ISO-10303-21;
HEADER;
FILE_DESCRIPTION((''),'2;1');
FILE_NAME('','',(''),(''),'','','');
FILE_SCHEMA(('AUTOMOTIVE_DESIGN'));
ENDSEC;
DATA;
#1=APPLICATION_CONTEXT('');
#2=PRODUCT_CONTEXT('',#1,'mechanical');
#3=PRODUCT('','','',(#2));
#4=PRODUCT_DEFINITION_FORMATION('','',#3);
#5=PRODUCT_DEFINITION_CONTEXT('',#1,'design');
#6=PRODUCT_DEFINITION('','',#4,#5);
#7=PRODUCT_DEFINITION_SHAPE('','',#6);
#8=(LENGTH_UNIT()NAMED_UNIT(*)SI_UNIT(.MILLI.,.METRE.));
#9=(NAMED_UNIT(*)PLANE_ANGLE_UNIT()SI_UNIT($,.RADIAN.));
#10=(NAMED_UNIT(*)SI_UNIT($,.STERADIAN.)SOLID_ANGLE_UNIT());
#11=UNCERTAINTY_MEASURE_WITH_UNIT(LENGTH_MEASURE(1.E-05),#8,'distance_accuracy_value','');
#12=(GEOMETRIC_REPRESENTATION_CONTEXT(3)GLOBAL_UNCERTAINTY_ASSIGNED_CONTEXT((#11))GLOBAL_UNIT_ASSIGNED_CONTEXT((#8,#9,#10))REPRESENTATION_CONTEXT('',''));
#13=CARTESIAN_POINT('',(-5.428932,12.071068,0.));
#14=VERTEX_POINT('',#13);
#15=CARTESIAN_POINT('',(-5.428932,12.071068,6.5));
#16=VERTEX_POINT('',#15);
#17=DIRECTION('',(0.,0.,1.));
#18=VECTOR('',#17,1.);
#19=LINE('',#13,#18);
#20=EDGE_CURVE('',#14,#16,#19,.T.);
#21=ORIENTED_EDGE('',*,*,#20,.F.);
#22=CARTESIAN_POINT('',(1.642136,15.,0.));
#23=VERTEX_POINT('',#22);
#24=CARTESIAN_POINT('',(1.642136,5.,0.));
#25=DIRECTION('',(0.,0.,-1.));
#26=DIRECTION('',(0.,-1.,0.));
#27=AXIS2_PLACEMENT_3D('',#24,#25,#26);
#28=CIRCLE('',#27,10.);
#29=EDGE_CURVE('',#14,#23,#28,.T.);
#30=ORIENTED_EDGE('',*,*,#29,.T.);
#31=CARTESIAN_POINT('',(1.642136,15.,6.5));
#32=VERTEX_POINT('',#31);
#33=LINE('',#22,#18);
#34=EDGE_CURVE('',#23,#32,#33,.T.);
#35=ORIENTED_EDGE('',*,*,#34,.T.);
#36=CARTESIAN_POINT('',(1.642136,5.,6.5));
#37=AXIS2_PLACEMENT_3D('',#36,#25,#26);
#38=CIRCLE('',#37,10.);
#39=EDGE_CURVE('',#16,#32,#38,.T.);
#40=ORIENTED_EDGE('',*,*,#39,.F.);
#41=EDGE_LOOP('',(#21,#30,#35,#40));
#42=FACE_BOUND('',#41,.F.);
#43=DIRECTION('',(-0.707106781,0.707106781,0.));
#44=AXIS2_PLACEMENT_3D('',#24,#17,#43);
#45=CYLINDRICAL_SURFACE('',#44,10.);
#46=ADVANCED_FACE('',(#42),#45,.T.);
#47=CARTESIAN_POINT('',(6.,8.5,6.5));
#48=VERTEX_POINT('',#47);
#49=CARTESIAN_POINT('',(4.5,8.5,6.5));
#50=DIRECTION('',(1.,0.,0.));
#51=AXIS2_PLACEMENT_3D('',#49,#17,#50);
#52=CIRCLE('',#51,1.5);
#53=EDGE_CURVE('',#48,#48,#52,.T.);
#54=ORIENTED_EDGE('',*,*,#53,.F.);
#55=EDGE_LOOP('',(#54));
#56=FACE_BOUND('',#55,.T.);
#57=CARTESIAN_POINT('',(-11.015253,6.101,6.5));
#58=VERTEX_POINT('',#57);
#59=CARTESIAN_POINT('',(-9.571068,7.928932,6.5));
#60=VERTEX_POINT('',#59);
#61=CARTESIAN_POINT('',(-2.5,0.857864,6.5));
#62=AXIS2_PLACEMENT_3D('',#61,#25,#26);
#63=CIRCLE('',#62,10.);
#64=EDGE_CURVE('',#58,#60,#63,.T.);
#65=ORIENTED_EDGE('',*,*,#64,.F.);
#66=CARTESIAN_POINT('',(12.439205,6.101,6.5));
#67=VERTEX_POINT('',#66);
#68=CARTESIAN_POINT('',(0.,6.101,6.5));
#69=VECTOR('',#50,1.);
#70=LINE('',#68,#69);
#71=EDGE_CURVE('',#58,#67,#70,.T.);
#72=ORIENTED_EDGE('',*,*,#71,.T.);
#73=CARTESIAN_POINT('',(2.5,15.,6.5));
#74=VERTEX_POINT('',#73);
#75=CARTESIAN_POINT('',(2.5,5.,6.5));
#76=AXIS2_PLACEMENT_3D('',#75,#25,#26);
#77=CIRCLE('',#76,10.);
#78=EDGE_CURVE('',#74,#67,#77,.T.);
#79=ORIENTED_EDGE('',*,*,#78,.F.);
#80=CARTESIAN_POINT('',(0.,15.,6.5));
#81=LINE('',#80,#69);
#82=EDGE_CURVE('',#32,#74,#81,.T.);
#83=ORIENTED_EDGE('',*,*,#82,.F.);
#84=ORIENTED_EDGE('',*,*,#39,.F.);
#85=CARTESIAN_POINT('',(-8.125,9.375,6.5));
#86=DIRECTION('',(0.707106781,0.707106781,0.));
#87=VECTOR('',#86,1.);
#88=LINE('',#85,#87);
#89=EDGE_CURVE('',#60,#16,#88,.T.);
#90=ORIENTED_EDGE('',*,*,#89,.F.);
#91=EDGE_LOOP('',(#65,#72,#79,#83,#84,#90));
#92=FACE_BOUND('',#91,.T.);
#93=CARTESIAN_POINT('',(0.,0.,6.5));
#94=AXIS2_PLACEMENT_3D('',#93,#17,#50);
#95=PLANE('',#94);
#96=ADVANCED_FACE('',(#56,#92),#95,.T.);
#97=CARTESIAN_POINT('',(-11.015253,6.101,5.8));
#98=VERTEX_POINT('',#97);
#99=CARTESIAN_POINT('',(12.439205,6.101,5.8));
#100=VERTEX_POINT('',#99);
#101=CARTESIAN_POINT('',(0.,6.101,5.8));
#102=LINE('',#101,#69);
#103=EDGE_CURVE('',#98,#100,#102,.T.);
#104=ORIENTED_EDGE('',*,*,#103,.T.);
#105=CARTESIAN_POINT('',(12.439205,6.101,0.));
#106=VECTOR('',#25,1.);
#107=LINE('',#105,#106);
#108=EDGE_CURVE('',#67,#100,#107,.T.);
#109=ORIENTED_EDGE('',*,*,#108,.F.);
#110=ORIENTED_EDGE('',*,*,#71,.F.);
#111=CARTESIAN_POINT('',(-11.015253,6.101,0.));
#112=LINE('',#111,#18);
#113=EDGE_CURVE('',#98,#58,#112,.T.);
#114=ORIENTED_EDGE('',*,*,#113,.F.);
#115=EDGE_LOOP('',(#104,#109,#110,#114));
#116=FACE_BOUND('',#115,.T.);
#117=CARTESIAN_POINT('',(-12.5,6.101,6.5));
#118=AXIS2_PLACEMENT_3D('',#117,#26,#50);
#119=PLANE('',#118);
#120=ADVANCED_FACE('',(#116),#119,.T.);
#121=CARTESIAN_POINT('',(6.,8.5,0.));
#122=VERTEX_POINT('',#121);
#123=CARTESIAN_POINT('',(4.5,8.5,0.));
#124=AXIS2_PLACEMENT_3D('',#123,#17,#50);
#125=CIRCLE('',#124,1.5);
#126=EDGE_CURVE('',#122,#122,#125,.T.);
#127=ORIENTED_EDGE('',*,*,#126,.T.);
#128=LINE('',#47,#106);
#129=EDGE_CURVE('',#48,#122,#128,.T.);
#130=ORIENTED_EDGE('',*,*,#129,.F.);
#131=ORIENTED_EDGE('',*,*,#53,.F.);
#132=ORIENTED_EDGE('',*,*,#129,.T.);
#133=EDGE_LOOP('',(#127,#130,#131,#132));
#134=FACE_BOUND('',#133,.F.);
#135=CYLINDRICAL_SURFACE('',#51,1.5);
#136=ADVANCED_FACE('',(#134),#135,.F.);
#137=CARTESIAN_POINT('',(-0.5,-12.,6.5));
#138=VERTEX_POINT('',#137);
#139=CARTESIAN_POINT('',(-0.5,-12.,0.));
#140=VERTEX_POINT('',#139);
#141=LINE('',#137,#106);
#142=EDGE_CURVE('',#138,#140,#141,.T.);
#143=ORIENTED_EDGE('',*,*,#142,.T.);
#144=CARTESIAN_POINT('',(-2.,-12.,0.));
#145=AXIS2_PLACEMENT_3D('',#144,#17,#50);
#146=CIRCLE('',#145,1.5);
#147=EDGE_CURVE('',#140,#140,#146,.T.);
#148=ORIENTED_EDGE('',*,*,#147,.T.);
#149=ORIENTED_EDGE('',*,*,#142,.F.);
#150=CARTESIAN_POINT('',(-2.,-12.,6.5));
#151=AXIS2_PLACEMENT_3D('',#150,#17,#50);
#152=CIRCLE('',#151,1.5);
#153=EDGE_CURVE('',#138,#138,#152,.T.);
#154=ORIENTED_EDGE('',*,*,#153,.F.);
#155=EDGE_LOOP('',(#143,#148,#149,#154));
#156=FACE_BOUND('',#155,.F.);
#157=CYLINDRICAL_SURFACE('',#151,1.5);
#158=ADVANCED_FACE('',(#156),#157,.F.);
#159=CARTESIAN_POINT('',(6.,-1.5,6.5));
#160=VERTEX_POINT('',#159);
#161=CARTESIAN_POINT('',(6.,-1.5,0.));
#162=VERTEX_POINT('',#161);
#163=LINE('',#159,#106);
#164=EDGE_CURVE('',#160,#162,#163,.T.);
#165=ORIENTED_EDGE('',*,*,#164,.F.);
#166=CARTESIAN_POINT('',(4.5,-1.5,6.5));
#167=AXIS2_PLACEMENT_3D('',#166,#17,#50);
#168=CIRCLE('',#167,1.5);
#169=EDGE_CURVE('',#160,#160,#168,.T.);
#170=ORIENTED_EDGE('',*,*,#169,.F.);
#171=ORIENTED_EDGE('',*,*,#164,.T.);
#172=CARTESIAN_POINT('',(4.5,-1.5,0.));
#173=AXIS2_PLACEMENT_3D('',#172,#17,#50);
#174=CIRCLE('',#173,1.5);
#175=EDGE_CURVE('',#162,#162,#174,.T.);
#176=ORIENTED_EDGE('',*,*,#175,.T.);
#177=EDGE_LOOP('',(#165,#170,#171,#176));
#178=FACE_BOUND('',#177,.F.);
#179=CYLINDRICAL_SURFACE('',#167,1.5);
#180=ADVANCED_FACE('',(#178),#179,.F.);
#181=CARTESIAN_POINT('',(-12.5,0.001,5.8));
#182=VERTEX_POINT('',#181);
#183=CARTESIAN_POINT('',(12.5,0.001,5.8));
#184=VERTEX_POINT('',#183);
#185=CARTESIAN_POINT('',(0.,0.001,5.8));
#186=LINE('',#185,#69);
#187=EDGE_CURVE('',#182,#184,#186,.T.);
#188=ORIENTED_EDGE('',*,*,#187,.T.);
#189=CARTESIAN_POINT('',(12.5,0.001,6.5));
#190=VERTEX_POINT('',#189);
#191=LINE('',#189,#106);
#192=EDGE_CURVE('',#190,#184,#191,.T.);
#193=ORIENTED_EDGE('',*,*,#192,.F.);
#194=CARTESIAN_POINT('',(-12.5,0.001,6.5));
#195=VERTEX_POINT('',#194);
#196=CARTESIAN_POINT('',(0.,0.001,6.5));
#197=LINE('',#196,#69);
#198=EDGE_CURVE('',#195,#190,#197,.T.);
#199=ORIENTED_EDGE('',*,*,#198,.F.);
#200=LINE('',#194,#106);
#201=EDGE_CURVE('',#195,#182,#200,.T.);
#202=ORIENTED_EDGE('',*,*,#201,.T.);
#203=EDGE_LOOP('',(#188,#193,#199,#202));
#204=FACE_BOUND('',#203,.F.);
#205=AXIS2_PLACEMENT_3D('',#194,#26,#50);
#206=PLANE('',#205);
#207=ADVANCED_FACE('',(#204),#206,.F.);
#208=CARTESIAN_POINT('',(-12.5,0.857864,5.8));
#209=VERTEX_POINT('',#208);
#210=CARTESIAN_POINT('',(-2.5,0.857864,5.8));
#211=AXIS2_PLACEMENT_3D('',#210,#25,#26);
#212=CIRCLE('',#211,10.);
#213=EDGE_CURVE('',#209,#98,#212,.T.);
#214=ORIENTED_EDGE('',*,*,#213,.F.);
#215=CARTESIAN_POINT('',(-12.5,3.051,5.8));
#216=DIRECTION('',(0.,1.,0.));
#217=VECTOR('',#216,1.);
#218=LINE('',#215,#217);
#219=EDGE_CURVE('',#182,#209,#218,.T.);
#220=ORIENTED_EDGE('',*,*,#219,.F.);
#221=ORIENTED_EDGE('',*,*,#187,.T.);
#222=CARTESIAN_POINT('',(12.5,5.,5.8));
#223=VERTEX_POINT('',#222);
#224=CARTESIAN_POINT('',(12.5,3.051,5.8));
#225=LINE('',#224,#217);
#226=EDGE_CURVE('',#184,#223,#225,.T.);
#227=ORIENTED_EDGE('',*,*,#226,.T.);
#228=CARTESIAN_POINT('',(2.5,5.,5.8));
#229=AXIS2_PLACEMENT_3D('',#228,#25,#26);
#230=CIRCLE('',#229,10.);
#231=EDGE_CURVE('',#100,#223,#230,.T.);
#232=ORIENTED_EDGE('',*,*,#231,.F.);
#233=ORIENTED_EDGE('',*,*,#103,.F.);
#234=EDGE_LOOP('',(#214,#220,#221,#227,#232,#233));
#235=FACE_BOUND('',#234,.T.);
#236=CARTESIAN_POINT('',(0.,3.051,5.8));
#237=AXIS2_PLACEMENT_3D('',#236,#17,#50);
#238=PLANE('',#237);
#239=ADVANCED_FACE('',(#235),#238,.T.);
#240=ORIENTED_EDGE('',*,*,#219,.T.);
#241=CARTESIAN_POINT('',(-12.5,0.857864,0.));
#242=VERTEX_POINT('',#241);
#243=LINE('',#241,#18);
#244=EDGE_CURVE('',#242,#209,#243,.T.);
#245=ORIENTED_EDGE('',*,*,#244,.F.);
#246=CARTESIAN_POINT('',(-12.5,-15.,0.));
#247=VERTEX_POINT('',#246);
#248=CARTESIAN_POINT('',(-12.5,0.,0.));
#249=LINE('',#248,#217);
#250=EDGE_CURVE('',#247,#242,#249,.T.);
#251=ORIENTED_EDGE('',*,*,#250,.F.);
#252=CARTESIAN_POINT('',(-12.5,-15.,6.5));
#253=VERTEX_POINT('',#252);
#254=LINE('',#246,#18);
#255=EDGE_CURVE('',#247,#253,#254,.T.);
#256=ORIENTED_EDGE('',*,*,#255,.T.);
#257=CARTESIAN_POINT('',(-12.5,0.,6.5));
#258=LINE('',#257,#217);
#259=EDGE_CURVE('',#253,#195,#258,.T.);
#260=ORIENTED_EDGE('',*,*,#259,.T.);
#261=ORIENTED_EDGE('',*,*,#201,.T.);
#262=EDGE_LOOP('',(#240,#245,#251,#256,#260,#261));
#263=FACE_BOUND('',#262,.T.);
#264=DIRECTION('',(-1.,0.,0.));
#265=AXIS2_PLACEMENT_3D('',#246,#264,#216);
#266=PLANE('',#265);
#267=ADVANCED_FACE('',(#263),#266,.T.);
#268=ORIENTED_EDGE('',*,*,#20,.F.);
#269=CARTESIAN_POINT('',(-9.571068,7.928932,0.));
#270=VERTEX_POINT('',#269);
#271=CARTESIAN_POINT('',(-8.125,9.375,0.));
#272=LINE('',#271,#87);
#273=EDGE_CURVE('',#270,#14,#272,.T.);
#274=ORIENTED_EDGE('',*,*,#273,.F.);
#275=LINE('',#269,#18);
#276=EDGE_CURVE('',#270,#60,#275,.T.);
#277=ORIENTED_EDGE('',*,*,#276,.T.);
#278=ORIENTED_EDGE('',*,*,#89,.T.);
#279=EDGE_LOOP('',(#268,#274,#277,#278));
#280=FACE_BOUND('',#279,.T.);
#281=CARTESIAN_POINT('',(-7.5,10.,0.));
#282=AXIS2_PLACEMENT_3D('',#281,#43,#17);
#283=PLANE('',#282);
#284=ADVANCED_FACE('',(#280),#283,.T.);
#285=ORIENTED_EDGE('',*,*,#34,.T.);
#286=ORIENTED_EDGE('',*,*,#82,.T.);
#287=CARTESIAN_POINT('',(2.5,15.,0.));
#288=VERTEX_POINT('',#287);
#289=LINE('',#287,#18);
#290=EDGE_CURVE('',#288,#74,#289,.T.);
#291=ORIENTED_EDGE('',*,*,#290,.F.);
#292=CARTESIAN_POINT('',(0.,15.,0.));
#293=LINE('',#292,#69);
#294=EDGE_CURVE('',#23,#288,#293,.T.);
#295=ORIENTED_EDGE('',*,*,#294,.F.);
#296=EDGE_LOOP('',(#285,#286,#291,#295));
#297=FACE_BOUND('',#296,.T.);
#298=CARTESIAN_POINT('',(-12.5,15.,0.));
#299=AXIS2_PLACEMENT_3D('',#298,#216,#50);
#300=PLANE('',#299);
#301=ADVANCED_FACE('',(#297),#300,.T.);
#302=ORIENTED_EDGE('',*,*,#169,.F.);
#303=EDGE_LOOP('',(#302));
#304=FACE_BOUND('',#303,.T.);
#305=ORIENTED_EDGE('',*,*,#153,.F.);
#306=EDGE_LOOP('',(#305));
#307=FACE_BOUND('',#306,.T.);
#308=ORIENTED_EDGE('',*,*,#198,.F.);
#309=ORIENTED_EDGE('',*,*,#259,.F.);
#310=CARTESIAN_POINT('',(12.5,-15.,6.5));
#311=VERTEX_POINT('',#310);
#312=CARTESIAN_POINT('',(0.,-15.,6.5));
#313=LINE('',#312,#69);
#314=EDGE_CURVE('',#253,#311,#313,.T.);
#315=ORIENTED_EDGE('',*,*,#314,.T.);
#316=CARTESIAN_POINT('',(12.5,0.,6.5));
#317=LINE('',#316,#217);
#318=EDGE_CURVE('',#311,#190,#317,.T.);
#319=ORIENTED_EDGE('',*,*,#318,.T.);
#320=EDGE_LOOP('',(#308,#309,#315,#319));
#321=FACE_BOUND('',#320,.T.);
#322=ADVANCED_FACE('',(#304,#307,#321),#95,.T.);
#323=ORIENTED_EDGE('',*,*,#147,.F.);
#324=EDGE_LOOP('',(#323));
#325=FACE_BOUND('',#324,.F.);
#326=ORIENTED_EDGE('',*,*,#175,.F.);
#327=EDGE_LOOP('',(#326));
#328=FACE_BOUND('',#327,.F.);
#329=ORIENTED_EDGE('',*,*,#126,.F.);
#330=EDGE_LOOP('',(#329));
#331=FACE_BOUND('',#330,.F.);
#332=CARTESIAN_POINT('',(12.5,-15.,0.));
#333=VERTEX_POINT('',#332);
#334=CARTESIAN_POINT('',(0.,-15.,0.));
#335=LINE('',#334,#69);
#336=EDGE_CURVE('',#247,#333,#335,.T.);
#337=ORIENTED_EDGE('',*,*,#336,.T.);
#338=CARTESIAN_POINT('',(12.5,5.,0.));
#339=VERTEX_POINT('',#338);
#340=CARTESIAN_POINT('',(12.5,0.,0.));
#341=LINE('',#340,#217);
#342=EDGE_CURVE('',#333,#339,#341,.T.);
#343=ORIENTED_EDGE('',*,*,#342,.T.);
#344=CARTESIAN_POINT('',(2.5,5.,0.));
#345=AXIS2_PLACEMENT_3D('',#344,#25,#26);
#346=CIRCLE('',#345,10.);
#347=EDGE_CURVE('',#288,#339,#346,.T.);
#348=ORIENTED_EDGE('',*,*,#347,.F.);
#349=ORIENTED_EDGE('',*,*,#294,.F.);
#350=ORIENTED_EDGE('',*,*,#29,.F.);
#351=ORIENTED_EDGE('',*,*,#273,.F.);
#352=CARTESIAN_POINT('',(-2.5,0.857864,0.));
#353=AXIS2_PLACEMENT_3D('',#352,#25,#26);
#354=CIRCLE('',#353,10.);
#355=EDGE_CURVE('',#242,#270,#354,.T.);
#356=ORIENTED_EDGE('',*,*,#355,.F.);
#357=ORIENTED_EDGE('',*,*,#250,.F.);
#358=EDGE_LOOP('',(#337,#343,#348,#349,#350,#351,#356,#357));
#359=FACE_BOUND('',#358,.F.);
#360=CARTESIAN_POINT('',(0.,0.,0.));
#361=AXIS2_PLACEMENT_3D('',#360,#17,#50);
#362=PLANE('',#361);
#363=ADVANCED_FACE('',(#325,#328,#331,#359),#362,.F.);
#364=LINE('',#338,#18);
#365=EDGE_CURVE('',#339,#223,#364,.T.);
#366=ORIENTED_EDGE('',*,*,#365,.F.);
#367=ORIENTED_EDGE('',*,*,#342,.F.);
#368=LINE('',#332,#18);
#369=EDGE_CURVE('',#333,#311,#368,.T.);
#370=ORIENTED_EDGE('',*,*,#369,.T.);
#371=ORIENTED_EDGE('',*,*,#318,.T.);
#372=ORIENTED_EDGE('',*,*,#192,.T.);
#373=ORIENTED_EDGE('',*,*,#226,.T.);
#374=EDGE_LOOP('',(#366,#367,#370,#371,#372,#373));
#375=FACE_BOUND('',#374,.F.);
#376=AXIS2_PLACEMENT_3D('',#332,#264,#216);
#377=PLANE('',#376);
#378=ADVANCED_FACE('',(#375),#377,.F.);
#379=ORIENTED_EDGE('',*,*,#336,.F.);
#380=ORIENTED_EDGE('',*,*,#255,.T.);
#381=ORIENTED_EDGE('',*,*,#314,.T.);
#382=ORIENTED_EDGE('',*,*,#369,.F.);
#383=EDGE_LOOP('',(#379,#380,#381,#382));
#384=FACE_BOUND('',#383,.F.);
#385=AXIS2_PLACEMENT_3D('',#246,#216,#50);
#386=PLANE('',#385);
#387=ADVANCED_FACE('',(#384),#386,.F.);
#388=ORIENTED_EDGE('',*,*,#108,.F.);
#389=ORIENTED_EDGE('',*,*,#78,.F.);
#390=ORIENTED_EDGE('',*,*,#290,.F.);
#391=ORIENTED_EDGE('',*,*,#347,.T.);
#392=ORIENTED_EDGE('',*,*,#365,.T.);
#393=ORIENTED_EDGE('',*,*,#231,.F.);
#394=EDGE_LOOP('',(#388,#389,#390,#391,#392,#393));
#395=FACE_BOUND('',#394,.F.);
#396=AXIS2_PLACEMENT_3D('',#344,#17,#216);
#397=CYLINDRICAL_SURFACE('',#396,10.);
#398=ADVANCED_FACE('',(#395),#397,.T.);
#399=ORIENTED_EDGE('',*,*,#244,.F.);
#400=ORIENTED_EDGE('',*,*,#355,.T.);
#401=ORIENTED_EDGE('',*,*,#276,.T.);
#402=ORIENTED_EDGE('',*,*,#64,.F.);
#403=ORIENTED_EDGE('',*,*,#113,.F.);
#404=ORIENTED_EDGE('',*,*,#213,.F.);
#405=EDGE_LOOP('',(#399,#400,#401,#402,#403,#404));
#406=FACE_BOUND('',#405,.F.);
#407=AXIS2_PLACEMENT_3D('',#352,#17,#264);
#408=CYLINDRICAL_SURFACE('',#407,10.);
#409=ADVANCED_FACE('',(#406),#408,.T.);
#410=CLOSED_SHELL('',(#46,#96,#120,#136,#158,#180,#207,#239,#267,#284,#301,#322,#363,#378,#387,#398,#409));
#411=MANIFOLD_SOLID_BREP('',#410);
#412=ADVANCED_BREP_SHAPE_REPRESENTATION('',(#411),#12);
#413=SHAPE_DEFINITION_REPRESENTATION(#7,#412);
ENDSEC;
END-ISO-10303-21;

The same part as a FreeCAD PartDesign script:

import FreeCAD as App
import Part
import Sketcher
Q = App.Units.Quantity


def edges_at(feature, points):
    """Names of the edges that pass closest to the given points."""
    edges = feature.Shape.Edges
    near = lambda p: min(range(len(edges)), key=lambda i: edges[i].distToShape(Part.Vertex(*p))[0])
    return sorted({f"Edge{near(p) + 1}" for p in points})

doc = App.newDocument("Part")
params = doc.addObject("Spreadsheet::Sheet", "Params")
for row, (alias, value) in enumerate([
    ("sketch1_width", "25 mm"),
    ("sketch1_height", "30 mm"),
    ("pad1_length", "6.5 mm"),
    ("sketch2_diameter", "3 mm"),
    ("sketch3_width", "25 mm"),
    ("sketch3_height", "6.1 mm"),
    ("pocket2_length", "0.7 mm"),
    ("chamfer_size", "10 mm"),
    ("fillet_radius", "10 mm"),
], start=1):
    params.set(f"A{row}", alias)
    params.set(f"B{row}", "=" + value)
    params.setAlias(f"B{row}", alias)

body = doc.addObject("PartDesign::Body", "Body")

# Sketch on XY plane
sketch1 = doc.addObject("Sketcher::SketchObject", "Sketch")
body.addObject(sketch1)
sketch1.AttachmentSupport = (doc.XY_Plane, [""])
sketch1.MapMode = "FlatFace"
sketch1.addGeometry([
    Part.LineSegment(App.Vector(-12.5, 15, 0), App.Vector(-12.5, -15, 0)),
    Part.LineSegment(App.Vector(-12.5, -15, 0), App.Vector(12.5, -15, 0)),
    Part.LineSegment(App.Vector(12.5, -15, 0), App.Vector(12.5, 15, 0)),
    Part.LineSegment(App.Vector(12.5, 15, 0), App.Vector(-12.5, 15, 0)),
], False)
sketch1.addConstraint([
    Sketcher.Constraint("Coincident", 0, 2, 1, 1),
    Sketcher.Constraint("Coincident", 1, 2, 2, 1),
    Sketcher.Constraint("Coincident", 2, 2, 3, 1),
    Sketcher.Constraint("Coincident", 3, 2, 0, 1),
    Sketcher.Constraint("Vertical", 0),
    Sketcher.Constraint("Horizontal", 1),
    Sketcher.Constraint("Vertical", 2),
    Sketcher.Constraint("Horizontal", 3),
    Sketcher.Constraint("Symmetric", 0, 2, 2, 2, -1, 1),
    Sketcher.Constraint("DistanceX", 1, 1, 1, 2, Q("25 mm")),
    Sketcher.Constraint("DistanceY", 0, 2, 0, 1, Q("30 mm")),
])
sketch1.setExpression("Constraints[9]", "Params.sketch1_width")
sketch1.setExpression("Constraints[10]", "Params.sketch1_height")
pad1 = doc.addObject("PartDesign::Pad", "Pad")
body.addObject(pad1)
pad1.Profile = sketch1
pad1.setExpression("Length", "Params.pad1_length")

# Sketch on XY plane
sketch2 = doc.addObject("Sketcher::SketchObject", "Sketch001")
body.addObject(sketch2)
sketch2.AttachmentSupport = (doc.XY_Plane, [""])
sketch2.MapMode = "FlatFace"
sketch2.AttachmentOffset = App.Placement(App.Vector(0, 0, 6.5), App.Rotation())
sketch2.addGeometry([
    Part.Circle(App.Vector(-2, -12, 0), App.Vector(0, 0, 1), 1.5),
    Part.Circle(App.Vector(4.5, -1.5, 0), App.Vector(0, 0, 1), 1.5),
    Part.Circle(App.Vector(4.5, 8.5, 0), App.Vector(0, 0, 1), 1.5),
], False)
sketch2.addConstraint([
    Sketcher.Constraint("Equal", 0, 1),
    Sketcher.Constraint("Equal", 1, 2),
    Sketcher.Constraint("Vertical", 1, 3, 2, 3),
    Sketcher.Constraint("Diameter", 0, Q("3 mm")),
    Sketcher.Constraint("DistanceX", 0, 3, -1, 1, Q("2 mm")),
    Sketcher.Constraint("DistanceY", 0, 3, -1, 1, Q("12 mm")),
    Sketcher.Constraint("DistanceY", 1, 3, 2, 3, Q("10 mm")),
    Sketcher.Constraint("DistanceX", -1, 1, 1, 3, Q("4.5 mm")),
    Sketcher.Constraint("DistanceY", 1, 3, -1, 1, Q("1.5 mm")),
])
sketch2.setExpression("Constraints[3]", "Params.sketch2_diameter")
pocket1 = doc.addObject("PartDesign::Pocket", "Pocket")
body.addObject(pocket1)
pocket1.Profile = sketch2
pocket1.Type = "ThroughAll"

# Sketch on XY plane
sketch3 = doc.addObject("Sketcher::SketchObject", "Sketch002")
body.addObject(sketch3)
sketch3.AttachmentSupport = (doc.XY_Plane, [""])
sketch3.MapMode = "FlatFace"
sketch3.AttachmentOffset = App.Placement(App.Vector(0, 0, 6.5), App.Rotation())
sketch3.addGeometry([
    Part.LineSegment(App.Vector(-12.5, 6.101, 0), App.Vector(-12.5, 0.001, 0)),
    Part.LineSegment(App.Vector(-12.5, 0.001, 0), App.Vector(12.5, 0.001, 0)),
    Part.LineSegment(App.Vector(12.5, 0.001, 0), App.Vector(12.5, 6.101, 0)),
    Part.LineSegment(App.Vector(12.5, 6.101, 0), App.Vector(-12.5, 6.101, 0)),
], False)
sketch3.addConstraint([
    Sketcher.Constraint("Coincident", 0, 2, 1, 1),
    Sketcher.Constraint("Coincident", 1, 2, 2, 1),
    Sketcher.Constraint("Coincident", 2, 2, 3, 1),
    Sketcher.Constraint("Coincident", 3, 2, 0, 1),
    Sketcher.Constraint("Vertical", 0),
    Sketcher.Constraint("Horizontal", 1),
    Sketcher.Constraint("Vertical", 2),
    Sketcher.Constraint("Horizontal", 3),
    Sketcher.Constraint("DistanceX", 1, 1, 1, 2, Q("25 mm")),
    Sketcher.Constraint("DistanceY", 0, 2, 0, 1, Q("6.1 mm")),
    Sketcher.Constraint("DistanceX", 0, 2, -1, 1, Q("12.5 mm")),
    Sketcher.Constraint("DistanceY", -1, 1, 0, 2, Q("0.001 mm")),
])
sketch3.setExpression("Constraints[8]", "Params.sketch3_width")
sketch3.setExpression("Constraints[9]", "Params.sketch3_height")
pocket2 = doc.addObject("PartDesign::Pocket", "Pocket001")
body.addObject(pocket2)
pocket2.Profile = sketch3
pocket2.setExpression("Length", "Params.pocket2_length")
doc.recompute()

chamfer = doc.addObject("PartDesign::Chamfer", "Chamfer")
body.addObject(chamfer)
chamfer.Base = (pocket2, edges_at(pocket2, [(-12.5, 15, 3.25)]))
chamfer.setExpression("Size", "Params.chamfer_size")
doc.recompute()

fillet = doc.addObject("PartDesign::Fillet", "Fillet")
body.addObject(fillet)
fillet.Base = (chamfer, edges_at(chamfer, [(-2.5, 15, 3.25), (-12.5, 5, 2.9), (12.5, 15, 3.25)]))
fillet.setExpression("Radius", "Params.fillet_radius")

doc.recompute()
